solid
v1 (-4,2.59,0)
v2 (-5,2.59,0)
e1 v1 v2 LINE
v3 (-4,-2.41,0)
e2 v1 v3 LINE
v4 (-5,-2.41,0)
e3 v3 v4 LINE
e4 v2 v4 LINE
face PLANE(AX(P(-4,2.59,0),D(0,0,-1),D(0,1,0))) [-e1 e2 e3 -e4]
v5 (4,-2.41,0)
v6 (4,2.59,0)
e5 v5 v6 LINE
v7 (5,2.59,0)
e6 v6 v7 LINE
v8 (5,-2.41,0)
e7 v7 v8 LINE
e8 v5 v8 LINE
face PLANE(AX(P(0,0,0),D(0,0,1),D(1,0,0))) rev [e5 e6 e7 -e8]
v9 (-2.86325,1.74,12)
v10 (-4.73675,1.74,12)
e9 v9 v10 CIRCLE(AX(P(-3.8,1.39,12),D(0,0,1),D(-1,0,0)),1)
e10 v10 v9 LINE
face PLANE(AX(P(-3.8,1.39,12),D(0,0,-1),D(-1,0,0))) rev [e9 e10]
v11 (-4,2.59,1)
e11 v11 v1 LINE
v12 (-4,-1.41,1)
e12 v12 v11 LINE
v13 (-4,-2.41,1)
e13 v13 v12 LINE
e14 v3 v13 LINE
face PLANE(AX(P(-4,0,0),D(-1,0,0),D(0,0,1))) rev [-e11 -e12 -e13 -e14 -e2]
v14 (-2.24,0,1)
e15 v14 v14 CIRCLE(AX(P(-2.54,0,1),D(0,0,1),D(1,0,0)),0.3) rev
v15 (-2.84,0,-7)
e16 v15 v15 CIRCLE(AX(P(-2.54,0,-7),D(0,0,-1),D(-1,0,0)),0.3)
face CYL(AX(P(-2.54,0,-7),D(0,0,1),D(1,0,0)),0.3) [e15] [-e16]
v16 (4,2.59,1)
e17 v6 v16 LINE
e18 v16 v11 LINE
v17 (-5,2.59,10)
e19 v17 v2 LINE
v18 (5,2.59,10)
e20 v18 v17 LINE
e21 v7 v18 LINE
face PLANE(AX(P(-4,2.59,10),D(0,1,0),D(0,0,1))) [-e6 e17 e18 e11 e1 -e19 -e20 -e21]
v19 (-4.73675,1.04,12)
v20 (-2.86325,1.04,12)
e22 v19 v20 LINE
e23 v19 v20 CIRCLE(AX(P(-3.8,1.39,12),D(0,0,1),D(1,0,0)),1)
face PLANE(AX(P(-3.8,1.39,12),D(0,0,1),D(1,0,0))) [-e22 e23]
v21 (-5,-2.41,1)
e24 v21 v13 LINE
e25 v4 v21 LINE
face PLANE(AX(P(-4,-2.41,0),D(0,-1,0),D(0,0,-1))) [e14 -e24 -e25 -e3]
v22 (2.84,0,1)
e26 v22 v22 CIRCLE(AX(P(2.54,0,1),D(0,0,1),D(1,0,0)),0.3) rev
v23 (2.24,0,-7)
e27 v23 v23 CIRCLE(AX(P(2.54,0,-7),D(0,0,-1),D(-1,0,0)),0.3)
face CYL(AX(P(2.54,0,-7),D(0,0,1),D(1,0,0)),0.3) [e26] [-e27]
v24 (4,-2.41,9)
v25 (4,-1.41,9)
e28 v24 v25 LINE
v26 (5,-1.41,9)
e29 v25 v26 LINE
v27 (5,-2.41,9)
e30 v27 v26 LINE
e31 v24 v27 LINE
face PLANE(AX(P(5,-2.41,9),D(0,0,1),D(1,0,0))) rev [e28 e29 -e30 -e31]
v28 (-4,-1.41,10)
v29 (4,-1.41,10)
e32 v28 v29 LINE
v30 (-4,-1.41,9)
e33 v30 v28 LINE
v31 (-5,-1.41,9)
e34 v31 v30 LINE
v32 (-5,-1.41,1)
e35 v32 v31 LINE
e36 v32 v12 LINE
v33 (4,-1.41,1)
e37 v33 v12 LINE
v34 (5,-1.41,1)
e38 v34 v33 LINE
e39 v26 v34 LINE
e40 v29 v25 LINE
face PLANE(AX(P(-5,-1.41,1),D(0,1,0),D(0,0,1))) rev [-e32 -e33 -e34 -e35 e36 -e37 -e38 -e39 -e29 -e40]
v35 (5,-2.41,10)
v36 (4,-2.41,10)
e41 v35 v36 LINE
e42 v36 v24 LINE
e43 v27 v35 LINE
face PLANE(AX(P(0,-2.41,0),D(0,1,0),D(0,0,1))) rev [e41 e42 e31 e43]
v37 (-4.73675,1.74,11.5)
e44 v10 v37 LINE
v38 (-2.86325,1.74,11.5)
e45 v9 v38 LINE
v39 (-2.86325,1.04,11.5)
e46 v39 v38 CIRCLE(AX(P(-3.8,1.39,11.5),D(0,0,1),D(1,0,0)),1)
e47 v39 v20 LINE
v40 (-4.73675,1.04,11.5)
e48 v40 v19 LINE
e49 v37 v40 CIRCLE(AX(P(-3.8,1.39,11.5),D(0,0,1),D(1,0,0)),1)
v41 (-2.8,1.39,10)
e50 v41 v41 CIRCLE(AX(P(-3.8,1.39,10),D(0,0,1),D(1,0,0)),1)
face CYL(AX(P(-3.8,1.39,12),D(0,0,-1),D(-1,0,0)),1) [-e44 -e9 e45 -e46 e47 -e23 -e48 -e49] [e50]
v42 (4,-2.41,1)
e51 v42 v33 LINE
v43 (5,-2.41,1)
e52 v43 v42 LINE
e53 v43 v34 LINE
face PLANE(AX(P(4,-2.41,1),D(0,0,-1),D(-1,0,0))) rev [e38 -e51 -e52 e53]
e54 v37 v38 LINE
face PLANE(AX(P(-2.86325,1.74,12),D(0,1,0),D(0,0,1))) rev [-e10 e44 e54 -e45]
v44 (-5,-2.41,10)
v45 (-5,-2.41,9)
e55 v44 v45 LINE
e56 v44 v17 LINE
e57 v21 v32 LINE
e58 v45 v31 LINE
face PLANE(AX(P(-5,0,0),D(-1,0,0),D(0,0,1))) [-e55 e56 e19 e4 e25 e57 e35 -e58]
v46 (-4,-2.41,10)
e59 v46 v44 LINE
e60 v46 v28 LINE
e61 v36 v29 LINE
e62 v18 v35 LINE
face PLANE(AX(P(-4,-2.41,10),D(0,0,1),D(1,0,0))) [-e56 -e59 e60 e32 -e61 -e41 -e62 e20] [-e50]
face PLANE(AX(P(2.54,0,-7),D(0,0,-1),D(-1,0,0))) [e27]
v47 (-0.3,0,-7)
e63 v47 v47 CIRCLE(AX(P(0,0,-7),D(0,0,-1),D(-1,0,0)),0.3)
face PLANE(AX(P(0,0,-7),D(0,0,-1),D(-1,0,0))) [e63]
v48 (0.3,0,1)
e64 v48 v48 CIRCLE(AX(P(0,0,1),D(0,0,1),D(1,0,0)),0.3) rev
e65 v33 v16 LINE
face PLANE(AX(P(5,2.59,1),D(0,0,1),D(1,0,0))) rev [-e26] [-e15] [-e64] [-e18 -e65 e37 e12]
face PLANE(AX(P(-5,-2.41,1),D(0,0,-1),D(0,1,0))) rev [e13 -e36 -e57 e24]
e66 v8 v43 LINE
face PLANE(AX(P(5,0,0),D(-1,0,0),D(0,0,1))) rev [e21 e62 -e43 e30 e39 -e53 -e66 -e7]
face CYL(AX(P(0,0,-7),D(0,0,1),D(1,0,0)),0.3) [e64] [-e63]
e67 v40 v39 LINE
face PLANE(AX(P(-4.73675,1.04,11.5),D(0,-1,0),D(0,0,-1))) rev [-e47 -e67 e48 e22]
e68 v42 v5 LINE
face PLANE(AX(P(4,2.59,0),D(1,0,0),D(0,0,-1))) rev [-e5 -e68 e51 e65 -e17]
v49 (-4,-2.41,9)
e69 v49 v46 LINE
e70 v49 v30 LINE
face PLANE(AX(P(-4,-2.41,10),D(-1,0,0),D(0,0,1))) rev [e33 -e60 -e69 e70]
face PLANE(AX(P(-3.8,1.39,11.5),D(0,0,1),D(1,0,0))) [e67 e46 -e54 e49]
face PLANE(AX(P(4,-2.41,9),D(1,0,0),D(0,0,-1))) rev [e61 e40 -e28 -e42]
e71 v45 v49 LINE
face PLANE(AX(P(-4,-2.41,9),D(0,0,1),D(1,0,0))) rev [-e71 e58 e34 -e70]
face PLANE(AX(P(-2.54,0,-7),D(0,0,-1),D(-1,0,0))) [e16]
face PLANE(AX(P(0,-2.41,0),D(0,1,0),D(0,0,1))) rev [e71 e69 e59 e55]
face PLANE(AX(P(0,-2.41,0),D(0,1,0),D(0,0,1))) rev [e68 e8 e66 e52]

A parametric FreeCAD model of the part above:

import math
import FreeCAD as App
import Part
import Sketcher

doc = App.newDocument("Part")
body = doc.addObject("PartDesign::Body", "Body")

sketch1 = body.newObject("Sketcher::SketchObject", "Sketch")
sketch1.AttachmentSupport = (doc.getObject("YZ_Plane"), [""])
sketch1.MapMode = "FlatFace"
sketch1.AttachmentOffset = App.Placement(App.Vector(0, 0, -5), App.Rotation())
sketch1.addGeometry(Part.LineSegment(App.Vector(3, 10, 0), App.Vector(3, 0, 0)), False)
sketch1.addGeometry(Part.LineSegment(App.Vector(3, 0, 0), App.Vector(-2, 0, 0)), False)
sketch1.addGeometry(Part.LineSegment(App.Vector(-2, 0, 0), App.Vector(-2, 10, 0)), False)
sketch1.addGeometry(Part.LineSegment(App.Vector(-2, 10, 0), App.Vector(3, 10, 0)), False)
sketch1.addConstraint(Sketcher.Constraint("Coincident", 0, 2, 1, 1))
sketch1.addConstraint(Sketcher.Constraint("Coincident", 1, 2, 2, 1))
sketch1.addConstraint(Sketcher.Constraint("Coincident", 2, 2, 3, 1))
sketch1.addConstraint(Sketcher.Constraint("Coincident", 3, 2, 0, 1))
sketch1.addConstraint(Sketcher.Constraint("Vertical", 0))
sketch1.addConstraint(Sketcher.Constraint("Horizontal", 1))
sketch1.addConstraint(Sketcher.Constraint("Vertical", 2))
sketch1.addConstraint(Sketcher.Constraint("Horizontal", 3))
sketch1.addConstraint(Sketcher.Constraint("PointOnObject", 0, 2, -1))
sketch1.addConstraint(Sketcher.Constraint("DistanceX", 1, 2, 1, 1, 5.0))
sketch1.addConstraint(Sketcher.Constraint("DistanceY", 0, 2, 0, 1, 10.0))
sketch1.addConstraint(Sketcher.Constraint("DistanceX", -1, 1, 0, 2, 2.59))
pad1 = body.newObject("PartDesign::Pad", "Pad")
pad1.Profile = sketch1
pad1.Length = 1

sketch2 = body.newObject("Sketcher::SketchObject", "Sketch001")
sketch2.AttachmentSupport = (doc.getObject("YZ_Plane"), [""])
sketch2.MapMode = "FlatFace"
sketch2.AttachmentOffset = App.Placement(App.Vector(0, 0, -4), App.Rotation())
sketch2.addGeometry(Part.LineSegment(App.Vector(-1.4, 10, 0), App.Vector(-2.4, 10, 0)), False)
sketch2.addGeometry(Part.LineSegment(App.Vector(-2.4, 10, 0), App.Vector(-2.4, 1, 0)), False)
sketch2.addGeometry(Part.LineSegment(App.Vector(-2.4, 1, 0), App.Vector(-1.4, 1, 0)), False)
sketch2.addGeometry(Part.LineSegment(App.Vector(-1.4, 1, 0), App.Vector(-1.4, 10, 0)), False)
sketch2.addConstraint(Sketcher.Constraint("Coincident", 0, 2, 1, 1))
sketch2.addConstraint(Sketcher.Constraint("Coincident", 1, 2, 2, 1))
sketch2.addConstraint(Sketcher.Constraint("Coincident", 2, 2, 3, 1))
sketch2.addConstraint(Sketcher.Constraint("Coincident", 3, 2, 0, 1))
sketch2.addConstraint(Sketcher.Constraint("Horizontal", 0))
sketch2.addConstraint(Sketcher.Constraint("Vertical", 1))
sketch2.addConstraint(Sketcher.Constraint("Horizontal", 2))
sketch2.addConstraint(Sketcher.Constraint("Vertical", 3))
sketch2.addConstraint(Sketcher.Constraint("DistanceX", 0, 2, 0, 1, 1.0))
sketch2.addConstraint(Sketcher.Constraint("DistanceY", 1, 2, 1, 1, 9.0))
sketch2.addConstraint(Sketcher.Constraint("DistanceY", -1, 1, 0, 2, 10.0))
sketch2.addConstraint(Sketcher.Constraint("DistanceX", 0, 2, -1, 1, 2.41))
pocket1 = body.newObject("PartDesign::Pocket", "Pocket")
pocket1.Profile = sketch2
pocket1.Type = "ThroughAll"

sketch3 = body.newObject("Sketcher::SketchObject", "Sketch002")
sketch3.AttachmentSupport = (doc.getObject("YZ_Plane"), [""])
sketch3.MapMode = "FlatFace"
sketch3.AttachmentOffset = App.Placement(App.Vector(0, 0, -4), App.Rotation())
sketch3.addGeometry(Part.LineSegment(App.Vector(2.6, 10, 0), App.Vector(-1.4, 10, 0)), False)
sketch3.addGeometry(Part.LineSegment(App.Vector(-1.4, 10, 0), App.Vector(-1.4, 1, 0)), False)
sketch3.addGeometry(Part.LineSegment(App.Vector(-1.4, 1, 0), App.Vector(2.6, 1, 0)), False)
sketch3.addGeometry(Part.LineSegment(App.Vector(2.6, 1, 0), App.Vector(2.6, 10, 0)), False)
sketch3.addConstraint(Sketcher.Constraint("Coincident", 0, 2, 1, 1))
sketch3.addConstraint(Sketcher.Constraint("Coincident", 1, 2, 2, 1))
sketch3.addConstraint(Sketcher.Constraint("Coincident", 2, 2, 3, 1))
sketch3.addConstraint(Sketcher.Constraint("Coincident", 3, 2, 0, 1))
sketch3.addConstraint(Sketcher.Constraint("Horizontal", 0))
sketch3.addConstraint(Sketcher.Constraint("Vertical", 1))
sketch3.addConstraint(Sketcher.Constraint("Horizontal", 2))
sketch3.addConstraint(Sketcher.Constraint("Vertical", 3))
sketch3.addConstraint(Sketcher.Constraint("DistanceX", 0, 2, 0, 1, 4.0))
sketch3.addConstraint(Sketcher.Constraint("DistanceY", 1, 2, 1, 1, 9.0))
sketch3.addConstraint(Sketcher.Constraint("DistanceY", -1, 1, 0, 2, 10.0))
sketch3.addConstraint(Sketcher.Constraint("DistanceX", 0, 2, -1, 1, 1.41))
pad2 = body.newObject("PartDesign::Pad", "Pad001")
pad2.Profile = sketch3
pad2.Length = 9

sketch4 = body.newObject("Sketcher::SketchObject", "Sketch003")
sketch4.AttachmentSupport = (doc.getObject("XY_Plane"), [""])
sketch4.MapMode = "FlatFace"
sketch4.AttachmentOffset = App.Placement(App.Vector(0, 0, 1), App.Rotation())
sketch4.addGeometry(Part.LineSegment(App.Vector(5, 2.6, 0), App.Vector(5, -1.4, 0)), False)
sketch4.addGeometry(Part.LineSegment(App.Vector(5, -1.4, 0), App.Vector(4, -1.4, 0)), False)
sketch4.addGeometry(Part.LineSegment(App.Vector(4, -1.4, 0), App.Vector(4, 2.6, 0)), False)
sketch4.addGeometry(Part.LineSegment(App.Vector(4, 2.6, 0), App.Vector(5, 2.6, 0)), False)
sketch4.addConstraint(Sketcher.Constraint("Coincident", 0, 2, 1, 1))
sketch4.addConstraint(Sketcher.Constraint("Coincident", 1, 2, 2, 1))
sketch4.addConstraint(Sketcher.Constraint("Coincident", 2, 2, 3, 1))
sketch4.addConstraint(Sketcher.Constraint("Coincident", 3, 2, 0, 1))
sketch4.addConstraint(Sketcher.Constraint("Vertical", 0))
sketch4.addConstraint(Sketcher.Constraint("Horizontal", 1))
sketch4.addConstraint(Sketcher.Constraint("Vertical", 2))
sketch4.addConstraint(Sketcher.Constraint("Horizontal", 3))
sketch4.addConstraint(Sketcher.Constraint("DistanceX", 1, 2, 1, 1, 1.0))
sketch4.addConstraint(Sketcher.Constraint("DistanceY", 0, 2, 0, 1, 4.0))
sketch4.addConstraint(Sketcher.Constraint("DistanceX", -1, 1, 0, 2, 5.0))
sketch4.addConstraint(Sketcher.Constraint("DistanceY", 0, 2, -1, 1, 1.41))
pad3 = body.newObject("PartDesign::Pad", "Pad002")
pad3.Profile = sketch4
pad3.Length = 1
pad3.Reversed = True

sketch5 = body.newObject("Sketcher::SketchObject", "Sketch004")
sketch5.AttachmentSupport = (doc.getObject("XZ_Plane"), [""])
sketch5.MapMode = "FlatFace"
sketch5.AttachmentOffset = App.Placement(App.Vector(0, 0, 1.41), App.Rotation())
sketch5.addGeometry(Part.LineSegment(App.Vector(4, 1, 0), App.Vector(4, 0, 0)), False)
sketch5.addGeometry(Part.LineSegment(App.Vector(4, 0, 0), App.Vector(5, 0, 0)), False)
sketch5.addGeometry(Part.LineSegment(App.Vector(5, 0, 0), App.Vector(5, 1, 0)), False)
sketch5.addGeometry(Part.LineSegment(App.Vector(5, 1, 0), App.Vector(4, 1, 0)), False)
sketch5.addConstraint(Sketcher.Constraint("Coincident", 0, 2, 1, 1))
sketch5.addConstraint(Sketcher.Constraint("Coincident", 1, 2, 2, 1))
sketch5.addConstraint(Sketcher.Constraint("Coincident", 2, 2, 3, 1))
sketch5.addConstraint(Sketcher.Constraint("Coincident", 3, 2, 0, 1))
sketch5.addConstraint(Sketcher.Constraint("Vertical", 0))
sketch5.addConstraint(Sketcher.Constraint("Horizontal", 1))
sketch5.addConstraint(Sketcher.Constraint("Vertical", 2))
sketch5.addConstraint(Sketcher.Constraint("Horizontal", 3))
sketch5.addConstraint(Sketcher.Constraint("PointOnObject", 0, 2, -1))
sketch5.addConstraint(Sketcher.Constraint("Equal", 3, 0))
sketch5.addConstraint(Sketcher.Constraint("DistanceX", 1, 1, 1, 2, 1.0))
sketch5.addConstraint(Sketcher.Constraint("DistanceX", -1, 1, 0, 2, 4.0))
pad4 = body.newObject("PartDesign::Pad", "Pad003")
pad4.Profile = sketch5
pad4.Length = 1

sketch6 = body.newObject("Sketcher::SketchObject", "Sketch005")
sketch6.AttachmentSupport = (doc.getObject("XZ_Plane"), [""])
sketch6.MapMode = "FlatFace"
sketch6.AttachmentOffset = App.Placement(App.Vector(0, 0, 1.41), App.Rotation())
sketch6.addGeometry(Part.LineSegment(App.Vector(-5, 10, 0), App.Vector(-5, 9, 0)), False)
sketch6.addGeometry(Part.LineSegment(App.Vector(-5, 9, 0), App.Vector(-4, 9, 0)), False)
sketch6.addGeometry(Part.LineSegment(App.Vector(-4, 9, 0), App.Vector(-4, 10, 0)), False)
sketch6.addGeometry(Part.LineSegment(App.Vector(-4, 10, 0), App.Vector(-5, 10, 0)), False)
sketch6.addConstraint(Sketcher.Constraint("Coincident", 0, 2, 1, 1))
sketch6.addConstraint(Sketcher.Constraint("Coincident", 1, 2, 2, 1))
sketch6.addConstraint(Sketcher.Constraint("Coincident", 2, 2, 3, 1))
sketch6.addConstraint(Sketcher.Constraint("Coincident", 3, 2, 0, 1))
sketch6.addConstraint(Sketcher.Constraint("Vertical", 0))
sketch6.addConstraint(Sketcher.Constraint("Horizontal", 1))
sketch6.addConstraint(Sketcher.Constraint("Vertical", 2))
sketch6.addConstraint(Sketcher.Constraint("Horizontal", 3))
sketch6.addConstraint(Sketcher.Constraint("Equal", 3, 0))
sketch6.addConstraint(Sketcher.Constraint("DistanceX", 1, 1, 1, 2, 1.0))
sketch6.addConstraint(Sketcher.Constraint("DistanceX", 0, 2, -1, 1, 5.0))
sketch6.addConstraint(Sketcher.Constraint("DistanceY", -1, 1, 0, 2, 9.0))
pad5 = body.newObject("PartDesign::Pad", "Pad004")
pad5.Profile = sketch6
pad5.Length = 1

sketch7 = body.newObject("Sketcher::SketchObject", "Sketch006")
sketch7.AttachmentSupport = (doc.getObject("XZ_Plane"), [""])
sketch7.MapMode = "FlatFace"
sketch7.AttachmentOffset = App.Placement(App.Vector(0, 0, 1.41), App.Rotation())
sketch7.addGeometry(Part.LineSegment(App.Vector(4, 10, 0), App.Vector(4, 9, 0)), False)
sketch7.addGeometry(Part.LineSegment(App.Vector(4, 9, 0), App.Vector(5, 9, 0)), False)
sketch7.addGeometry(Part.LineSegment(App.Vector(5, 9, 0), App.Vector(5, 10, 0)), False)
sketch7.addGeometry(Part.LineSegment(App.Vector(5, 10, 0), App.Vector(4, 10, 0)), False)
sketch7.addConstraint(Sketcher.Constraint("Coincident", 0, 2, 1, 1))
sketch7.addConstraint(Sketcher.Constraint("Coincident", 1, 2, 2, 1))
sketch7.addConstraint(Sketcher.Constraint("Coincident", 2, 2, 3, 1))
sketch7.addConstraint(Sketcher.Constraint("Coincident", 3, 2, 0, 1))
sketch7.addConstraint(Sketcher.Constraint("Vertical", 0))
sketch7.addConstraint(Sketcher.Constraint("Horizontal", 1))
sketch7.addConstraint(Sketcher.Constraint("Vertical", 2))
sketch7.addConstraint(Sketcher.Constraint("Horizontal", 3))
sketch7.addConstraint(Sketcher.Constraint("Equal", 3, 0))
sketch7.addConstraint(Sketcher.Constraint("DistanceX", 1, 1, 1, 2, 1.0))
sketch7.addConstraint(Sketcher.Constraint("DistanceX", -1, 1, 0, 2, 4.0))
sketch7.addConstraint(Sketcher.Constraint("DistanceY", -1, 1, 0, 2, 9.0))
pad6 = body.newObject("PartDesign::Pad", "Pad005")
pad6.Profile = sketch7
pad6.Length = 1

sketch8 = body.newObject("Sketcher::SketchObject", "Sketch007")
sketch8.AttachmentSupport = (doc.getObject("XY_Plane"), [""])
sketch8.MapMode = "FlatFace"
sketch8.AttachmentOffset = App.Placement(App.Vector(0, 0, 10), App.Rotation())
sketch8.addGeometry(Part.Circle(App.Vector(-3.8, 1.4, 0), App.Vector(0, 0, 1), 1), False)
sketch8.addConstraint(Sketcher.Constraint("Diameter", 0, 2.0))
sketch8.addConstraint(Sketcher.Constraint("DistanceX", 0, 3, -1, 1, 3.8))
sketch8.addConstraint(Sketcher.Constraint("DistanceY", -1, 1, 0, 3, 1.39))
pad7 = body.newObject("PartDesign::Pad", "Pad006")
pad7.Profile = sketch8
pad7.Length = 2

sketch9 = body.newObject("Sketcher::SketchObject", "Sketch008")
sketch9.AttachmentSupport = (doc.getObject("XY_Plane"), [""])
sketch9.MapMode = "FlatFace"
sketch9.AttachmentOffset = App.Placement(App.Vector(0, 0, 11.5), App.Rotation())
sketch9.addGeometry(Part.LineSegment(App.Vector(-4.7, 1, 0), App.Vector(-2.9, 1, 0)), False)
sketch9.addGeometry(Part.ArcOfCircle(Part.Circle(App.Vector(-3.8, 1.4, 0), App.Vector(0, 0, 1), 1), math.radians(-20), math.radians(200)), False)
sketch9.addConstraint(Sketcher.Constraint("Coincident", 0, 1, 1, 2))
sketch9.addConstraint(Sketcher.Constraint("Coincident", 1, 1, 0, 2))
sketch9.addConstraint(Sketcher.Constraint("Horizontal", 0))
sketch9.addConstraint(Sketcher.Constraint("Radius", 1, 1.0))
sketch9.addConstraint(Sketcher.Constraint("DistanceX", 1, 3, -1, 1, 3.8))
sketch9.addConstraint(Sketcher.Constraint("DistanceY", -1, 1, 1, 3, 1.39))
sketch9.addConstraint(Sketcher.Constraint("DistanceY", -1, 1, 0, 1, 1.04))
pocket2 = body.newObject("PartDesign::Pocket", "Pocket001")
pocket2.Profile = sketch9
pocket2.Length = 0.5
pocket2.Reversed = True

sketch10 = body.newObject("Sketcher::SketchObject", "Sketch009")
sketch10.AttachmentSupport = (doc.getObject("XY_Plane"), [""])
sketch10.MapMode = "FlatFace"
sketch10.AttachmentOffset = App.Placement(App.Vector(0, 0, 11.5), App.Rotation())
sketch10.addGeometry(Part.LineSegment(App.Vector(-4.7, 1.7, 0), App.Vector(-2.9, 1.7, 0)), False)
sketch10.addGeometry(Part.ArcOfCircle(Part.Circle(App.Vector(-3.8, 1.4, 0), App.Vector(0, 0, 1), 1), math.radians(20), math.radians(160)), False)
sketch10.addConstraint(Sketcher.Constraint("Coincident", 0, 1, 1, 2))
sketch10.addConstraint(Sketcher.Constraint("Coincident", 1, 1, 0, 2))
sketch10.addConstraint(Sketcher.Constraint("Horizontal", 0))
sketch10.addConstraint(Sketcher.Constraint("Radius", 1, 1.0))
sketch10.addConstraint(Sketcher.Constraint("DistanceX", 1, 3, -1, 1, 3.8))
sketch10.addConstraint(Sketcher.Constraint("DistanceY", -1, 1, 1, 3, 1.39))
sketch10.addConstraint(Sketcher.Constraint("DistanceY", -1, 1, 0, 1, 1.74))
pad8 = body.newObject("PartDesign::Pad", "Pad007")
pad8.Profile = sketch10
pad8.Length = 0.5

sketch11 = body.newObject("Sketcher::SketchObject", "Sketch010")
sketch11.AttachmentSupport = (doc.getObject("XY_Plane"), [""])
sketch11.MapMode = "FlatFace"
sketch11.AttachmentOffset = App.Placement(App.Vector(0, 0, 1), App.Rotation())
sketch11.addGeometry(Part.Circle(App.Vector(2.54, 0, 0), App.Vector(0, 0, 1), 0.3), False)
sketch11.addConstraint(Sketcher.Constraint("PointOnObject", 0, 3, -1))
sketch11.addConstraint(Sketcher.Constraint("Diameter", 0, 0.6))
sketch11.addConstraint(Sketcher.Constraint("DistanceX", -1, 1, 0, 3, 2.54))
pad9 = body.newObject("PartDesign::Pad", "Pad008")
pad9.Profile = sketch11
pad9.Length = 8
pad9.Reversed = True

sketch12 = body.newObject("Sketcher::SketchObject", "Sketch011")
sketch12.AttachmentSupport = (doc.getObject("XY_Plane"), [""])
sketch12.MapMode = "FlatFace"
sketch12.AttachmentOffset = App.Placement(App.Vector(0, 0, 1), App.Rotation())
sketch12.addGeometry(Part.Circle(App.Vector(0, 0, 0), App.Vector(0, 0, 1), 0.3), False)
sketch12.addConstraint(Sketcher.Constraint("Coincident", 0, 3, -1, 1))
sketch12.addConstraint(Sketcher.Constraint("Diameter", 0, 0.6))
pad10 = body.newObject("PartDesign::Pad", "Pad009")
pad10.Profile = sketch12
pad10.Length = 8
pad10.Reversed = True

sketch13 = body.newObject("Sketcher::SketchObject", "Sketch012")
sketch13.AttachmentSupport = (doc.getObject("XY_Plane"), [""])
sketch13.MapMode = "FlatFace"
sketch13.AttachmentOffset = App.Placement(App.Vector(0, 0, 1), App.Rotation())
sketch13.addGeometry(Part.Circle(App.Vector(-2.54, 0, 0), App.Vector(0, 0, 1), 0.3), False)
sketch13.addConstraint(Sketcher.Constraint("PointOnObject", 0, 3, -1))
sketch13.addConstraint(Sketcher.Constraint("Diameter", 0, 0.6))
sketch13.addConstraint(Sketcher.Constraint("DistanceX", 0, 3, -1, 1, 2.54))
pad11 = body.newObject("PartDesign::Pad", "Pad010")
pad11.Profile = sketch13
pad11.Length = 8
pad11.Reversed = True

doc.recompute()
